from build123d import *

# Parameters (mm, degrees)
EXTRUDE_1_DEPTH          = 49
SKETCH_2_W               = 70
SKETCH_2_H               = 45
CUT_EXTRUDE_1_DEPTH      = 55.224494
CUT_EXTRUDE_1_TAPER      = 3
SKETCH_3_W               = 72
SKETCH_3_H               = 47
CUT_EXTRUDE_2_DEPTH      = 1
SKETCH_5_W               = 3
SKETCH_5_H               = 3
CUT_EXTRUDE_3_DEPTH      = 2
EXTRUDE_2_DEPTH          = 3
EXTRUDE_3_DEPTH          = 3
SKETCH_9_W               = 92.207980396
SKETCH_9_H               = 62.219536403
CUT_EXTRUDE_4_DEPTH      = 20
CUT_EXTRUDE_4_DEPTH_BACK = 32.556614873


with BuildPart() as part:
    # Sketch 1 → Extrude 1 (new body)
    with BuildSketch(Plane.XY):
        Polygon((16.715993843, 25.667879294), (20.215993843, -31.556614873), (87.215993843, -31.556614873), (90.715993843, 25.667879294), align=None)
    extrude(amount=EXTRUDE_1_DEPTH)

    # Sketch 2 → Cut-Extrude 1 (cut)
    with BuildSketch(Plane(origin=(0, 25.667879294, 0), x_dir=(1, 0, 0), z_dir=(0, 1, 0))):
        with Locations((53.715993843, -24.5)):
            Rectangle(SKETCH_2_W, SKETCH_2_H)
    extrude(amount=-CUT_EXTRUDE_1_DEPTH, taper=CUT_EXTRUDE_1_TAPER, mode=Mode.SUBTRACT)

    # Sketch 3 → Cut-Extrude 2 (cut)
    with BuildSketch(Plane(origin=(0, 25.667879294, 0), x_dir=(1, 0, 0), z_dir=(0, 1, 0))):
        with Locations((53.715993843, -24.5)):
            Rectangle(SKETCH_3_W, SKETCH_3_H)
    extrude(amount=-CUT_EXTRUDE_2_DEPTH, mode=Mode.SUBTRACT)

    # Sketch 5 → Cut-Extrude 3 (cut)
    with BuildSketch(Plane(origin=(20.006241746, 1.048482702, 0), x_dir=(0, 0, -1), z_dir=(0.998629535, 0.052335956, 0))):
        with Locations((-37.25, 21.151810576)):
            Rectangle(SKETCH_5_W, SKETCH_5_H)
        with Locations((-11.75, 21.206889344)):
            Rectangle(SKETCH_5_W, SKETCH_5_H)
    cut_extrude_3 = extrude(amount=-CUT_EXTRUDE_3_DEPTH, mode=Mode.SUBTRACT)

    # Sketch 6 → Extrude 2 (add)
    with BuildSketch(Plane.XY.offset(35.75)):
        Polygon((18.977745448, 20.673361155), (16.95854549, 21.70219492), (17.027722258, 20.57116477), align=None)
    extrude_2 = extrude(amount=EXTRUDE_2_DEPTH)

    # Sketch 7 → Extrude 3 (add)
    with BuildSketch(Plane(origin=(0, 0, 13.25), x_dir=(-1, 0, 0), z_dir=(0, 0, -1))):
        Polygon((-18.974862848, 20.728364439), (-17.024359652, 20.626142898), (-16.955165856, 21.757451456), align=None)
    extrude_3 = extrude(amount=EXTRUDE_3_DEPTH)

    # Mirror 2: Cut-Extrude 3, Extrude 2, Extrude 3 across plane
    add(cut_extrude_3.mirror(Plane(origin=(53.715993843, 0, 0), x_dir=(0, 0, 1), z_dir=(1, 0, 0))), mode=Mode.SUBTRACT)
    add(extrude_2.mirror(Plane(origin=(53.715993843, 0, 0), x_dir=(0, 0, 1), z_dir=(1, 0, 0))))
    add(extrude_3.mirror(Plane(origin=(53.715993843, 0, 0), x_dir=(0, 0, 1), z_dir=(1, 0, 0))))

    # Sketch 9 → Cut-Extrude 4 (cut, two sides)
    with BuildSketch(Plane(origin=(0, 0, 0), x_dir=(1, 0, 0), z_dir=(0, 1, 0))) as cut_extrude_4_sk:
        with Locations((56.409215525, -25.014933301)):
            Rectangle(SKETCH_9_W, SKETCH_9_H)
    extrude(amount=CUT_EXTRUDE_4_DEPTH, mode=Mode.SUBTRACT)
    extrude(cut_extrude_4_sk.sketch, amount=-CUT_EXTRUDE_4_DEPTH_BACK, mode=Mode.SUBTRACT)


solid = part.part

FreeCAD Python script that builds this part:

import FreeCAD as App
import Part
import Sketcher
Q = App.Units.Quantity

doc = App.newDocument("Part")
body = doc.addObject("PartDesign::Body", "Body")

sketch1 = body.newObject("Sketcher::SketchObject", "Sketch")
sketch1.AttachmentSupport = (doc.getObject("XY_Plane"), [""])
sketch1.MapMode = "FlatFace"
sketch1.addGeometry([
    Part.LineSegment(App.Vector(17, 26, 0), App.Vector(20, -32, 0)),
    Part.LineSegment(App.Vector(20, -32, 0), App.Vector(87, -32, 0)),
    Part.LineSegment(App.Vector(87, -32, 0), App.Vector(91, 26, 0)),
    Part.LineSegment(App.Vector(91, 26, 0), App.Vector(17, 26, 0)),
], False)
sketch1.addConstraint([
    Sketcher.Constraint("Coincident", 0, 2, 1, 1),
    Sketcher.Constraint("Coincident", 1, 2, 2, 1),
    Sketcher.Constraint("Coincident", 2, 2, 3, 1),
    Sketcher.Constraint("Coincident", 3, 2, 0, 1),
    Sketcher.Constraint("Horizontal", 1),
    Sketcher.Constraint("Horizontal", 3),
    Sketcher.Constraint("Equal", 0, 2),
    Sketcher.Constraint("DistanceX", 1, 1, 1, 2, Q("67 mm")),
    Sketcher.Constraint("DistanceX", 3, 2, 3, 1, Q("74 mm")),
    Sketcher.Constraint("Angle", 0, Q("-86.5 deg")),
    Sketcher.Constraint("DistanceY", -1, 1, 2, 2, Q("25.667879 mm")),
    Sketcher.Constraint("DistanceX", -1, 1, 0, 2, Q("20.215994 mm")),
])
pad1 = body.newObject("PartDesign::Pad", "Pad")
pad1.Profile = sketch1
pad1.Length = 49

sketch2 = body.newObject("Sketcher::SketchObject", "Sketch001")
sketch2.AttachmentSupport = (doc.getObject("XZ_Plane"), [""])
sketch2.MapMode = "FlatFace"
sketch2.AttachmentOffset = App.Placement(App.Vector(0, 0, -25.667879), App.Rotation())
sketch2.addGeometry([
    Part.LineSegment(App.Vector(19, 2, 0), App.Vector(19, 47, 0)),
    Part.LineSegment(App.Vector(19, 47, 0), App.Vector(89, 47, 0)),
    Part.LineSegment(App.Vector(89, 47, 0), App.Vector(89, 2, 0)),
    Part.LineSegment(App.Vector(89, 2, 0), App.Vector(19, 2, 0)),
], False)
sketch2.addConstraint([
    Sketcher.Constraint("Coincident", 0, 2, 1, 1),
    Sketcher.Constraint("Coincident", 1, 2, 2, 1),
    Sketcher.Constraint("Coincident", 2, 2, 3, 1),
    Sketcher.Constraint("Coincident", 3, 2, 0, 1),
    Sketcher.Constraint("Vertical", 0),
    Sketcher.Constraint("Horizontal", 1),
    Sketcher.Constraint("Vertical", 2),
    Sketcher.Constraint("Horizontal", 3),
    Sketcher.Constraint("DistanceX", 1, 1, 1, 2, Q("70 mm")),
    Sketcher.Constraint("DistanceY", 0, 1, 0, 2, Q("45 mm")),
    Sketcher.Constraint("DistanceY", -1, 1, 0, 2, Q("47 mm")),
    Sketcher.Constraint("DistanceX", -1, 1, 0, 2, Q("18.715994 mm")),
])
pocket1 = body.newObject("PartDesign::Pocket", "Pocket")
pocket1.Profile = sketch2
pocket1.Length = 55.224494
pocket1.Reversed = True
pocket1.TaperAngle = -3

sketch3 = body.newObject("Sketcher::SketchObject", "Sketch002")
sketch3.AttachmentSupport = (doc.getObject("XZ_Plane"), [""])
sketch3.MapMode = "FlatFace"
sketch3.AttachmentOffset = App.Placement(App.Vector(0, 0, -25.667879), App.Rotation())
sketch3.addGeometry([
    Part.LineSegment(App.Vector(18, 1, 0), App.Vector(18, 48, 0)),
    Part.LineSegment(App.Vector(18, 48, 0), App.Vector(90, 48, 0)),
    Part.LineSegment(App.Vector(90, 48, 0), App.Vector(90, 1, 0)),
    Part.LineSegment(App.Vector(90, 1, 0), App.Vector(18, 1, 0)),
], False)
sketch3.addConstraint([
    Sketcher.Constraint("Coincident", 0, 2, 1, 1),
    Sketcher.Constraint("Coincident", 1, 2, 2, 1),
    Sketcher.Constraint("Coincident", 2, 2, 3, 1),
    Sketcher.Constraint("Coincident", 3, 2, 0, 1),
    Sketcher.Constraint("Vertical", 0),
    Sketcher.Constraint("Horizontal", 1),
    Sketcher.Constraint("Vertical", 2),
    Sketcher.Constraint("Horizontal", 3),
    Sketcher.Constraint("DistanceX", 1, 1, 1, 2, Q("72 mm")),
    Sketcher.Constraint("DistanceY", 0, 1, 0, 2, Q("47 mm")),
    Sketcher.Constraint("DistanceY", -1, 1, 0, 2, Q("48 mm")),
    Sketcher.Constraint("DistanceX", -1, 1, 0, 2, Q("17.715994 mm")),
])
pocket2 = body.newObject("PartDesign::Pocket", "Pocket001")
pocket2.Profile = sketch3
pocket2.Length = 1
pocket2.Reversed = True

sketch4 = body.newObject("Sketcher::SketchObject", "Sketch003")
sketch4.Placement = App.Placement(App.Vector(20.006242, 1.048483, 0), App.Rotation(App.Vector(0, 0, -1), App.Vector(-0.052335956, 0.998629535, 0), App.Vector(0.998629535, 0.052335956, 0), "ZXY"))
sketch4.addGeometry([
    Part.LineSegment(App.Vector(-38.8, 22.7, 0), App.Vector(-38.8, 19.7, 0)),
    Part.LineSegment(App.Vector(-38.8, 19.7, 0), App.Vector(-35.8, 19.7, 0)),
    Part.LineSegment(App.Vector(-35.8, 19.7, 0), App.Vector(-35.8, 22.7, 0)),
    Part.LineSegment(App.Vector(-35.8, 22.7, 0), App.Vector(-38.8, 22.7, 0)),
    Part.LineSegment(App.Vector(-13.2, 22.7, 0), App.Vector(-13.2, 19.7, 0)),
    Part.LineSegment(App.Vector(-13.2, 19.7, 0), App.Vector(-10.2, 19.7, 0)),
    Part.LineSegment(App.Vector(-10.2, 19.7, 0), App.Vector(-10.2, 22.7, 0)),
    Part.LineSegment(App.Vector(-10.2, 22.7, 0), App.Vector(-13.2, 22.7, 0)),
], False)
sketch4.addConstraint([
    Sketcher.Constraint("Coincident", 0, 2, 1, 1),
    Sketcher.Constraint("Coincident", 1, 2, 2, 1),
    Sketcher.Constraint("Coincident", 2, 2, 3, 1),
    Sketcher.Constraint("Coincident", 3, 2, 0, 1),
    Sketcher.Constraint("Coincident", 4, 2, 5, 1),
    Sketcher.Constraint("Coincident", 5, 2, 6, 1),
    Sketcher.Constraint("Coincident", 6, 2, 7, 1),
    Sketcher.Constraint("Coincident", 7, 2, 4, 1),
    Sketcher.Constraint("Vertical", 0),
    Sketcher.Constraint("Horizontal", 1),
    Sketcher.Constraint("Vertical", 2),
    Sketcher.Constraint("Horizontal", 3),
    Sketcher.Constraint("Vertical", 4),
    Sketcher.Constraint("Horizontal", 5),
    Sketcher.Constraint("Vertical", 6),
    Sketcher.Constraint("Horizontal", 7),
    Sketcher.Constraint("Equal", 3, 5),
    Sketcher.Constraint("Equal", 7, 0),
    Sketcher.Constraint("Equal", 2, 4),
    Sketcher.Constraint("DistanceX", 1, 1, 1, 2, Q("3 mm")),
    Sketcher.Constraint("DistanceX", 1, 2, 4, 2, Q("22.5 mm")),
    Sketcher.Constraint("DistanceX", 0, 2, -1, 1, Q("38.75 mm")),
    Sketcher.Constraint("DistanceY", -1, 1, 0, 2, Q("19.651811 mm")),
    Sketcher.Constraint("DistanceY", -1, 1, 4, 2, Q("19.706889 mm")),
])
pocket3 = body.newObject("PartDesign::Pocket", "Pocket002")
pocket3.Profile = sketch4
pocket3.Length = 2

sketch5 = body.newObject("Sketcher::SketchObject", "Sketch004")
sketch5.AttachmentSupport = (doc.getObject("XY_Plane"), [""])
sketch5.MapMode = "FlatFace"
sketch5.AttachmentOffset = App.Placement(App.Vector(0, 0, 35.75), App.Rotation())
sketch5.addGeometry([
    Part.LineSegment(App.Vector(19, 20.7, 0), App.Vector(17, 21.7, 0)),
    Part.LineSegment(App.Vector(17, 21.7, 0), App.Vector(17, 20.6, 0)),
    Part.LineSegment(App.Vector(17, 20.6, 0), App.Vector(19, 20.7, 0)),
], False)
sketch5.addConstraint([
    Sketcher.Constraint("Coincident", 0, 2, 1, 1),
    Sketcher.Constraint("Coincident", 1, 2, 2, 1),
    Sketcher.Constraint("Coincident", 2, 2, 0, 1),
    Sketcher.Constraint("Angle", 0, Q("153 deg")),
    Sketcher.Constraint("Angle", 2, Q("3 deg")),
    Sketcher.Constraint("Angle", 1, Q("-86.5 deg")),
    Sketcher.Constraint("Distance", 0, Q("2.266201 mm")),
    Sketcher.Constraint("DistanceY", -1, 1, 2, 2, Q("20.673361 mm")),
    Sketcher.Constraint("DistanceX", -1, 1, 0, 2, Q("16.958545 mm")),
])
pad2 = body.newObject("PartDesign::Pad", "Pad001")
pad2.Profile = sketch5
pad2.Length = 3

sketch6 = body.newObject("Sketcher::SketchObject", "Sketch005")
sketch6.AttachmentSupport = (doc.getObject("XY_Plane"), [""])
sketch6.MapMode = "FlatFace"
sketch6.AttachmentOffset = App.Placement(App.Vector(0, 0, 13.25), App.Rotation())
sketch6.addGeometry([
    Part.LineSegment(App.Vector(19, 20.7, 0), App.Vector(17, 20.6, 0)),
    Part.LineSegment(App.Vector(17, 20.6, 0), App.Vector(17, 21.8, 0)),
    Part.LineSegment(App.Vector(17, 21.8, 0), App.Vector(19, 20.7, 0)),
], False)
sketch6.addConstraint([
    Sketcher.Constraint("Coincident", 0, 2, 1, 1),
    Sketcher.Constraint("Coincident", 1, 2, 2, 1),
    Sketcher.Constraint("Coincident", 2, 2, 0, 1),
    Sketcher.Constraint("Angle", 0, Q("-177 deg")),
    Sketcher.Constraint("Angle", 2, Q("-27 deg")),
    Sketcher.Constraint("Angle", 1, Q("93.5 deg")),
    Sketcher.Constraint("Distance", 0, Q("1.95318 mm")),
    Sketcher.Constraint("DistanceX", -1, 1, 0, 2, Q("17.02436 mm")),
    Sketcher.Constraint("DistanceY", -1, 1, 1, 2, Q("21.757451 mm")),
])
pad3 = body.newObject("PartDesign::Pad", "Pad002")
pad3.Profile = sketch6
pad3.Length = 3
pad3.Reversed = True
doc.recompute()

datumplane = body.newObject("PartDesign::Plane", "DatumPlane")
datumplane.AttachmentSupport = (doc.getObject("YZ_Plane"), [""])
datumplane.MapMode = "FlatFace"
datumplane.AttachmentOffset = App.Placement(App.Vector(0, 0, 53.715994), App.Rotation())
mirrored = body.newObject("PartDesign::Mirrored", "Mirrored")
mirrored.Originals = [pocket3, pad2, pad3]
mirrored.MirrorPlane = (datumplane, [""])
body.Tip = mirrored

sketch7 = body.newObject("Sketcher::SketchObject", "Sketch006")
sketch7.AttachmentSupport = (doc.getObject("XZ_Plane"), [""])
sketch7.MapMode = "FlatFace"
sketch7.addGeometry([
    Part.LineSegment(App.Vector(10, -6, 0), App.Vector(10, 56, 0)),
    Part.LineSegment(App.Vector(10, 56, 0), App.Vector(103, 56, 0)),
    Part.LineSegment(App.Vector(103, 56, 0), App.Vector(103, -6, 0)),
    Part.LineSegment(App.Vector(103, -6, 0), App.Vector(10, -6, 0)),
], False)
sketch7.addConstraint([
    Sketcher.Constraint("Coincident", 0, 2, 1, 1),
    Sketcher.Constraint("Coincident", 1, 2, 2, 1),
    Sketcher.Constraint("Coincident", 2, 2, 3, 1),
    Sketcher.Constraint("Coincident", 3, 2, 0, 1),
    Sketcher.Constraint("Vertical", 0),
    Sketcher.Constraint("Horizontal", 1),
    Sketcher.Constraint("Vertical", 2),
    Sketcher.Constraint("Horizontal", 3),
    Sketcher.Constraint("DistanceX", 1, 1, 1, 2, Q("92.20798 mm")),
    Sketcher.Constraint("DistanceY", -1, 1, 0, 2, Q("56.124702 mm")),
    Sketcher.Constraint("DistanceY", 0, 1, 0, 2, Q("62.219536 mm")),
    Sketcher.Constraint("DistanceX", -1, 1, 0, 2, Q("10.305225 mm")),
])
pocket4 = body.newObject("PartDesign::Pocket", "Pocket003")
pocket4.Profile = sketch7
pocket4.Type = "TwoLengths"
pocket4.Length = 20
pocket4.Length2 = 32.556615

doc.recompute()
